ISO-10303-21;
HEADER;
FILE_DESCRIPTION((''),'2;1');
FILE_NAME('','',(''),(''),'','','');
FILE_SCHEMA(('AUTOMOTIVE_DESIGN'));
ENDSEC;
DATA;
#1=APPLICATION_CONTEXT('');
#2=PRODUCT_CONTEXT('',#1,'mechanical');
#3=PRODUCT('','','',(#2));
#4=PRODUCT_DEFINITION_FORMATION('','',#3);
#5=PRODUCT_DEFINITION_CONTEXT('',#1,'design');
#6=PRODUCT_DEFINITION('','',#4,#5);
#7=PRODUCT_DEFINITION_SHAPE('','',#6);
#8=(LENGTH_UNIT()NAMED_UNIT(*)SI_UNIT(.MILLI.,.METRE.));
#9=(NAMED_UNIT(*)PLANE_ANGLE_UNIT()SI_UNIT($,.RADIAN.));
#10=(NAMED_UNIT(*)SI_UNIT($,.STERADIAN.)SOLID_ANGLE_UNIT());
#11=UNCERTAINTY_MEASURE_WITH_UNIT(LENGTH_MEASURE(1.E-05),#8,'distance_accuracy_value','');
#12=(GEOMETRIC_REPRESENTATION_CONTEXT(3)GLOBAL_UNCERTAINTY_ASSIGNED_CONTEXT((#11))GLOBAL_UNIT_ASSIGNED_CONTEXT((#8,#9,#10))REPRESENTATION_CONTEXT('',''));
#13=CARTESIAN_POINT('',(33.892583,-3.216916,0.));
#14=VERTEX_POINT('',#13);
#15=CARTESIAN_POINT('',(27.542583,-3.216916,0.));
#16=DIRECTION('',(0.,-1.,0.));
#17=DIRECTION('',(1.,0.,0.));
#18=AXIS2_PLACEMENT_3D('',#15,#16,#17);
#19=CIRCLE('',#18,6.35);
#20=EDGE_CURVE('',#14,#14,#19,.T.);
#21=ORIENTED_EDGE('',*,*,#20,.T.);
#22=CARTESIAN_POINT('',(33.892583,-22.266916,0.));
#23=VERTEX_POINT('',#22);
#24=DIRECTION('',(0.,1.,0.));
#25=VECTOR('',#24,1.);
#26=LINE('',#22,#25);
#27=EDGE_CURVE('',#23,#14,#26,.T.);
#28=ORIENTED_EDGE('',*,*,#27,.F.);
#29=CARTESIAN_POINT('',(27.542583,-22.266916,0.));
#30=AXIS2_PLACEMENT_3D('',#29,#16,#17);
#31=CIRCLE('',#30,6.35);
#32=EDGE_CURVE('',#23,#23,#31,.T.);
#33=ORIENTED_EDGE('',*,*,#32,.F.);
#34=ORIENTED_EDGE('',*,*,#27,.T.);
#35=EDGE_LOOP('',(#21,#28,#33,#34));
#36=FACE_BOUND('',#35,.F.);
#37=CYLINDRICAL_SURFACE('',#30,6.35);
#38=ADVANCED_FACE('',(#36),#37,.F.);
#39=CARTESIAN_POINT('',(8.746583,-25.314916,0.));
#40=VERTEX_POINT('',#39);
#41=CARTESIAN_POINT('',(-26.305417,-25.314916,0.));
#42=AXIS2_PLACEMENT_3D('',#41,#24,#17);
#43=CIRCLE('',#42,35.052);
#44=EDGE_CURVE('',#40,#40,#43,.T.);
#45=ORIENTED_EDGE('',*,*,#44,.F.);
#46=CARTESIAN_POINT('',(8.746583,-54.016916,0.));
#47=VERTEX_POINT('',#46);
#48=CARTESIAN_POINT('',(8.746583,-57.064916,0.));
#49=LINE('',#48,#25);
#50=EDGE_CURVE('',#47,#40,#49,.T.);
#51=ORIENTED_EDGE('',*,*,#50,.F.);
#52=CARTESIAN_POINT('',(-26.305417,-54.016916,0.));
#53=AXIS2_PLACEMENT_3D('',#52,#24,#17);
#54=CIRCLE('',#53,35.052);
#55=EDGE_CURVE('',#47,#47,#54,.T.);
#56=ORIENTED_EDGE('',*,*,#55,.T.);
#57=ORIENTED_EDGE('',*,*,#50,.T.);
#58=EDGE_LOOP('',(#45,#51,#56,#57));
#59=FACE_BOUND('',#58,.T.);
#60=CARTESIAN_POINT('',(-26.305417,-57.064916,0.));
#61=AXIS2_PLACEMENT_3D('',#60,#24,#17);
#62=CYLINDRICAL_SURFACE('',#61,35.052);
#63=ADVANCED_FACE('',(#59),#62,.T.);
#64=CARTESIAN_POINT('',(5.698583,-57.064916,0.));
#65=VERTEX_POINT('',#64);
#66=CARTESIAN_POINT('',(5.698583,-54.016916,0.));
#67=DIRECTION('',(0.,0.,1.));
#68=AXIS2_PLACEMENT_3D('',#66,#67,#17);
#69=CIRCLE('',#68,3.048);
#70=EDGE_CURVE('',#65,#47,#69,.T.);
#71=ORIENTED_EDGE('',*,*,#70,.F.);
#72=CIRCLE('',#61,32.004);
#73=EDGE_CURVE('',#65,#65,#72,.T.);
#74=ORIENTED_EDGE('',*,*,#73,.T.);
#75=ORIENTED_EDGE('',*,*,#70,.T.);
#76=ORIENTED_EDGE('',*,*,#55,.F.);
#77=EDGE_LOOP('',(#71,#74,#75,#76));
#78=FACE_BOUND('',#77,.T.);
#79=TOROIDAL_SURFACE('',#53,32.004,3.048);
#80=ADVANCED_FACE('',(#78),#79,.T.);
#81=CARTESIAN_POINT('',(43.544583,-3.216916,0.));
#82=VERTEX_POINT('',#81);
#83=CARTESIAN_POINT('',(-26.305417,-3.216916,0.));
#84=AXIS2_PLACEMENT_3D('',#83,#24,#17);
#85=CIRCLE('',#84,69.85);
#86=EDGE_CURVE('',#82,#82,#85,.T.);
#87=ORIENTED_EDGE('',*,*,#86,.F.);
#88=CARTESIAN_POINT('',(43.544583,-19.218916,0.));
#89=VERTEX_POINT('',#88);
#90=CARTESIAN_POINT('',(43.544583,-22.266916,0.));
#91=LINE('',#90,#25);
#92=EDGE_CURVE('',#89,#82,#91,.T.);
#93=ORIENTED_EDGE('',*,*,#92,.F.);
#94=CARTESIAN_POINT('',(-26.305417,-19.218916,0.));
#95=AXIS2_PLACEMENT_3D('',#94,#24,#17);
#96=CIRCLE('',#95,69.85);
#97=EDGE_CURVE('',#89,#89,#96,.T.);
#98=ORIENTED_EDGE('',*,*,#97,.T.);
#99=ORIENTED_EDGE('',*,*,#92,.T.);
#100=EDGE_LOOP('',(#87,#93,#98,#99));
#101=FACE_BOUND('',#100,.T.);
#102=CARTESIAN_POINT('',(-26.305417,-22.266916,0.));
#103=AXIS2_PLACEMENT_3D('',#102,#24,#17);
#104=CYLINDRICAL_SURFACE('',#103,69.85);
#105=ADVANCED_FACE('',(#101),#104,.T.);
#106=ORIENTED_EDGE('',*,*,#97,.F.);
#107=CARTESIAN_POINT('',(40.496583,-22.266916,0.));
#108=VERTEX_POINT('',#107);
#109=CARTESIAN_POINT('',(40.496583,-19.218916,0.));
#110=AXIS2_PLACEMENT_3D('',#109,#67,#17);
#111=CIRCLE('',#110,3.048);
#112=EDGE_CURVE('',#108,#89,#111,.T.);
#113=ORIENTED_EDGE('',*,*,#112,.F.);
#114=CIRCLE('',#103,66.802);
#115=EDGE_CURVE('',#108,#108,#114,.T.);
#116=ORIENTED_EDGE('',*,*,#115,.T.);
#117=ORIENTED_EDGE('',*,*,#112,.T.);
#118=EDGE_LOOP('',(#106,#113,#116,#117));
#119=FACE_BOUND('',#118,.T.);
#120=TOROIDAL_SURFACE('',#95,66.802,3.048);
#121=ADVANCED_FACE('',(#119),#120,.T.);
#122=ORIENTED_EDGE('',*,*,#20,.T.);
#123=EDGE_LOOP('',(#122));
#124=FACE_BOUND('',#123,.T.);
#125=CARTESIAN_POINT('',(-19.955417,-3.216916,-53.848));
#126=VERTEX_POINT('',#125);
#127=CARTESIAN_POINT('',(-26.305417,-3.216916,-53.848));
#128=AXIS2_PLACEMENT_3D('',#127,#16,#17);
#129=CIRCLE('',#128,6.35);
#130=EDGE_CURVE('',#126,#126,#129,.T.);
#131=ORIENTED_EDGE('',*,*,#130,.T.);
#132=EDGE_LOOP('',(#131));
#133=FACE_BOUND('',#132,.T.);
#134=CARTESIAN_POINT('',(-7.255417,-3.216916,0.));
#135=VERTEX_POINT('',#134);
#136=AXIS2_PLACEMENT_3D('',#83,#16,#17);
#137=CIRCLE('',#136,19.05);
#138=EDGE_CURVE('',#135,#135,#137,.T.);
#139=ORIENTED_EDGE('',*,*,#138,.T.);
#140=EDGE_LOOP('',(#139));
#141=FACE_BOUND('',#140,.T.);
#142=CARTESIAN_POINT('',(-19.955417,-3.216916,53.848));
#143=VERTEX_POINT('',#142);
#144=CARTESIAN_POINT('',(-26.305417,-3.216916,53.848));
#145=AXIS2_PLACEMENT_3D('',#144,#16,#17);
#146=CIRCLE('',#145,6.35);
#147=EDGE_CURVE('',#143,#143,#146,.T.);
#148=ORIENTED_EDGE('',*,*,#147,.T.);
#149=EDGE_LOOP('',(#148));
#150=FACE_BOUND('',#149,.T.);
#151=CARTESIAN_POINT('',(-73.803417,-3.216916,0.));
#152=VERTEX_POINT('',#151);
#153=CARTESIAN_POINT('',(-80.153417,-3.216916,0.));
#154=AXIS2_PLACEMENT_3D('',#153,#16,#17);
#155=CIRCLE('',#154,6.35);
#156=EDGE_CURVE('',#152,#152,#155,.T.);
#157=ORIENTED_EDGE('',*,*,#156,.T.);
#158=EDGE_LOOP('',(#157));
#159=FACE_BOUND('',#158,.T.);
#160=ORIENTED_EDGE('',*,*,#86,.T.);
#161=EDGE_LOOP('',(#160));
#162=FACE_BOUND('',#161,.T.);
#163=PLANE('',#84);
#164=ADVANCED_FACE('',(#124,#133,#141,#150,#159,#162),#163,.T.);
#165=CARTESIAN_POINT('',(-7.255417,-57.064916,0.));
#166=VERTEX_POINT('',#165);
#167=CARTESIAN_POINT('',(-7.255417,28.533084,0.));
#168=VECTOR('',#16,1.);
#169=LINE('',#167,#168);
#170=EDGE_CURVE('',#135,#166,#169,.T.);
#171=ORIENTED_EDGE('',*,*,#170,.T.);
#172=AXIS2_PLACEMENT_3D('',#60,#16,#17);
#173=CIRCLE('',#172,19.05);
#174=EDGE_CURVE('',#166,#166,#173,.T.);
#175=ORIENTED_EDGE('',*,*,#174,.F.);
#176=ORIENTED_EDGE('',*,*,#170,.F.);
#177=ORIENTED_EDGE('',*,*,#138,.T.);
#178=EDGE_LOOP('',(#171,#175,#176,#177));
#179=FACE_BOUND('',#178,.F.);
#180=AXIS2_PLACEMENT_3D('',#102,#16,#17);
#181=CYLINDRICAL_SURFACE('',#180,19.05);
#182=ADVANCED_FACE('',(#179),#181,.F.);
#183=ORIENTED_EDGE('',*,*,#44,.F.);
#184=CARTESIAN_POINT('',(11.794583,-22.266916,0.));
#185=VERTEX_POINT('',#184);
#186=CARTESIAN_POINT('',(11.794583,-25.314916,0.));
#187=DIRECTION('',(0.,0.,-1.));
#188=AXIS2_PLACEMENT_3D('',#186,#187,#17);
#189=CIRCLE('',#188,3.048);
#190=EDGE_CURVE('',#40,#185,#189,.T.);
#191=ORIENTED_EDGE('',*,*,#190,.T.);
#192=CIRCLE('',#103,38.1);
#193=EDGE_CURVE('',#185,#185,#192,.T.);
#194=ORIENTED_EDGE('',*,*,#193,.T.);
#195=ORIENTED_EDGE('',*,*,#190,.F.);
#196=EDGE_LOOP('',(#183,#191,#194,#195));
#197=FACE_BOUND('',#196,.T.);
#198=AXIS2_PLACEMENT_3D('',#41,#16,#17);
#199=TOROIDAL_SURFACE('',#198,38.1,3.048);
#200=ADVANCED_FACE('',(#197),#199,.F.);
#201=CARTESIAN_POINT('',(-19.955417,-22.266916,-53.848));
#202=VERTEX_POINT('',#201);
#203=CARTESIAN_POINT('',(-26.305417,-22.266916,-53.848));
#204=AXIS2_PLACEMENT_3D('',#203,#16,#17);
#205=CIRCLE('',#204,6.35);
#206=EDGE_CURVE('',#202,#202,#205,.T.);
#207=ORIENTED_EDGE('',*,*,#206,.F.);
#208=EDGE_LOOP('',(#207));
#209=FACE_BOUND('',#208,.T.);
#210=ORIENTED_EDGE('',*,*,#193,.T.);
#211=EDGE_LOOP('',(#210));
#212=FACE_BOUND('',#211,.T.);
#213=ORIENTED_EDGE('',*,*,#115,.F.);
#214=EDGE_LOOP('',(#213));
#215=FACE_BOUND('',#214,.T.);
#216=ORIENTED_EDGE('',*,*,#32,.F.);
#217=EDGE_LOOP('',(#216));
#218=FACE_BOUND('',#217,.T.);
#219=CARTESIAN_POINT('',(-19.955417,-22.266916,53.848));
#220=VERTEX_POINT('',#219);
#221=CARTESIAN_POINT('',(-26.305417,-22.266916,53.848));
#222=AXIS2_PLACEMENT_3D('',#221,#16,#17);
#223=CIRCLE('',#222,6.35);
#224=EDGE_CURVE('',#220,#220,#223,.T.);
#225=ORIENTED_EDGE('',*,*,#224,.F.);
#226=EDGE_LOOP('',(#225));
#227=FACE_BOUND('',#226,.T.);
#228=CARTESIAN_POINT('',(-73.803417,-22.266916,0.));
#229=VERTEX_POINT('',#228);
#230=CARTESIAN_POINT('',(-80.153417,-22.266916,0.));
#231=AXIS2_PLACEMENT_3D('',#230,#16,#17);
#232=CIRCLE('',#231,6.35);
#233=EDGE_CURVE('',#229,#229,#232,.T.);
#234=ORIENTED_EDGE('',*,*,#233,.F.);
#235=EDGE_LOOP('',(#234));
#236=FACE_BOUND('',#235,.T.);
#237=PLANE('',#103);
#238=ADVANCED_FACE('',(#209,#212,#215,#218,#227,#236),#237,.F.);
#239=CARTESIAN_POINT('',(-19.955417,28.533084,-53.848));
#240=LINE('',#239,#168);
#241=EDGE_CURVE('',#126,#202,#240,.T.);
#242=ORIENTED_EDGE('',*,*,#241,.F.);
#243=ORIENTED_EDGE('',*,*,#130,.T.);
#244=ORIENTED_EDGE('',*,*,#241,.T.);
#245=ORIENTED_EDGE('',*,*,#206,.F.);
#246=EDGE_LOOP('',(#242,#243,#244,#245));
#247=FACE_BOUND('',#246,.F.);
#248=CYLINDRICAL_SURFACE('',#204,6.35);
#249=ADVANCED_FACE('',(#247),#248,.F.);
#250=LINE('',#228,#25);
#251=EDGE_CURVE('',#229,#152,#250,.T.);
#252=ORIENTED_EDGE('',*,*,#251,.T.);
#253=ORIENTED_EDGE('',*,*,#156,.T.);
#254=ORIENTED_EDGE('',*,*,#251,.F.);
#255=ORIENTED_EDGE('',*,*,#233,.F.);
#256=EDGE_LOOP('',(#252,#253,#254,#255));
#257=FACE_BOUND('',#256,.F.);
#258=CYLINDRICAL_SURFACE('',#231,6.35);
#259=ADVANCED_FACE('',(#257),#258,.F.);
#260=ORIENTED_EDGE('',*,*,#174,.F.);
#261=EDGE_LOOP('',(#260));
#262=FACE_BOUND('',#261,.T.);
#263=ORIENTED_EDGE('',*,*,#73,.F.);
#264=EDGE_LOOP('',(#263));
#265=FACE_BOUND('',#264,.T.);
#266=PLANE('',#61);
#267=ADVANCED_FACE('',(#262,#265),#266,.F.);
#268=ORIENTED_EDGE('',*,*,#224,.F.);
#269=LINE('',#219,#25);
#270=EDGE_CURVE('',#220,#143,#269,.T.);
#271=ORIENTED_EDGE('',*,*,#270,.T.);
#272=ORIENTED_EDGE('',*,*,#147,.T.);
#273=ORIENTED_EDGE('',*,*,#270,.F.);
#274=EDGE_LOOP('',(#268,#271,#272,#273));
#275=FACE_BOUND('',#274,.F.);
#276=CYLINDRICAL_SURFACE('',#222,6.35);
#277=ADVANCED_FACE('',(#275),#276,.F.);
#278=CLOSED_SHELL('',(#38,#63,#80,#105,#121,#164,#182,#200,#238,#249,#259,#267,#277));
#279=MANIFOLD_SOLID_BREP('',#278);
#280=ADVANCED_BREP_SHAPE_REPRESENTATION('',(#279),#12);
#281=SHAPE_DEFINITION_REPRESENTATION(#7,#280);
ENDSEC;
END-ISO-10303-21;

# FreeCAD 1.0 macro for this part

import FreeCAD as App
import Part
import Sketcher
Q = App.Units.Quantity


def edges_at(feature, points):
    """Names of the edges that pass closest to the given points."""
    edges = feature.Shape.Edges
    near = lambda p: min(range(len(edges)), key=lambda i: edges[i].distToShape(Part.Vertex(*p))[0])
    return sorted({f"Edge{near(p) + 1}" for p in points})

doc = App.newDocument("Part")
body = doc.addObject("PartDesign::Body", "Body")

# Sketch on XY plane
sketch1 = doc.addObject("Sketcher::SketchObject", "Sketch")
body.addObject(sketch1)
sketch1.AttachmentSupport = (doc.XY_Plane, [""])
sketch1.MapMode = "FlatFace"
sketch1.addGeometry(Part.LineSegment(App.Vector(-26, -3, 0), App.Vector(-26, -57, 0)), False)
sketch1.addGeometry(Part.LineSegment(App.Vector(-26, -57, 0), App.Vector(9, -57, 0)), False)
sketch1.addGeometry(Part.LineSegment(App.Vector(9, -57, 0), App.Vector(9, -22, 0)), False)
sketch1.addGeometry(Part.LineSegment(App.Vector(9, -22, 0), App.Vector(44, -22, 0)), False)
sketch1.addGeometry(Part.LineSegment(App.Vector(44, -22, 0), App.Vector(44, -3, 0)), False)
sketch1.addGeometry(Part.LineSegment(App.Vector(44, -3, 0), App.Vector(-26, -3, 0)), False)
sketch1.addGeometry(Part.LineSegment(App.Vector(-26, -57, 0), App.Vector(-26, -3, 0)), True)  # axis
sketch1.addConstraint(Sketcher.Constraint("Coincident", 0, 2, 1, 1))
sketch1.addConstraint(Sketcher.Constraint("Coincident", 1, 2, 2, 1))
sketch1.addConstraint(Sketcher.Constraint("Coincident", 2, 2, 3, 1))
sketch1.addConstraint(Sketcher.Constraint("Coincident", 3, 2, 4, 1))
sketch1.addConstraint(Sketcher.Constraint("Coincident", 4, 2, 5, 1))
sketch1.addConstraint(Sketcher.Constraint("Coincident", 5, 2, 0, 1))
sketch1.addConstraint(Sketcher.Constraint("Vertical", 0))
sketch1.addConstraint(Sketcher.Constraint("Horizontal", 1))
sketch1.addConstraint(Sketcher.Constraint("Vertical", 2))
sketch1.addConstraint(Sketcher.Constraint("Horizontal", 3))
sketch1.addConstraint(Sketcher.Constraint("Vertical", 4))
sketch1.addConstraint(Sketcher.Constraint("Horizontal", 5))
sketch1.addConstraint(Sketcher.Constraint("Vertical", 6))
sketch1.addConstraint(Sketcher.Constraint("Coincident", 6, 1, 0, 2))
sketch1.addConstraint(Sketcher.Constraint("Horizontal", 4, 2, 6, 2))
sketch1.addConstraint(Sketcher.Constraint("Equal", 3, 2))
sketch1.addConstraint(Sketcher.Constraint("DistanceX", 1, 1, 1, 2, Q("1.38 in")))
sketch1.addConstraint(Sketcher.Constraint("DistanceX", 3, 1, 3, 2, Q("1.37 in")))
sketch1.addConstraint(Sketcher.Constraint("DistanceY", 0, 2, 0, 1, Q("2.12 in")))
sketch1.addConstraint(Sketcher.Constraint("DistanceX", 0, 2, -1, 1, 26.305417))
sketch1.addConstraint(Sketcher.Constraint("DistanceY", 0, 2, -1, 1, 57.064916))
revolution = doc.addObject("PartDesign::Revolution", "Revolution")
body.addObject(revolution)
revolution.Profile = sketch1
revolution.ReferenceAxis = (sketch1, ["Axis0"])
revolution.Angle = 360

# Sketch on XZ plane
sketch2 = doc.addObject("Sketcher::SketchObject", "Sketch001")
body.addObject(sketch2)
sketch2.AttachmentSupport = (doc.XZ_Plane, [""])
sketch2.MapMode = "FlatFace"
sketch2.AttachmentOffset = App.Placement(App.Vector(0, 0, 22.266916), App.Rotation())
sketch2.addGeometry(Part.Circle(App.Vector(-26, 0, 0), App.Vector(0, 0, 1), 19), False)
sketch2.addConstraint(Sketcher.Constraint("PointOnObject", 0, 3, -1))
sketch2.addConstraint(Sketcher.Constraint("Diameter", 0, Q("1.5 in")))
sketch2.addConstraint(Sketcher.Constraint("DistanceX", 0, 3, -1, 1, 26.305417))
pocket1 = doc.addObject("PartDesign::Pocket", "Pocket")
body.addObject(pocket1)
pocket1.Profile = sketch2
pocket1.Length = Q("4 in")
pocket1.Midplane = True

# Sketch on XZ plane
sketch3 = doc.addObject("Sketcher::SketchObject", "Sketch002")
body.addObject(sketch3)
sketch3.AttachmentSupport = (doc.XZ_Plane, [""])
sketch3.MapMode = "FlatFace"
sketch3.AttachmentOffset = App.Placement(App.Vector(0, 0, 22.266916), App.Rotation())
sketch3.addGeometry(Part.Circle(App.Vector(-80, 0, 0), App.Vector(0, 0, 1), 6), False)
sketch3.addGeometry(Part.Circle(App.Vector(28, 0, 0), App.Vector(0, 0, 1), 6), False)
sketch3.addGeometry(Part.Circle(App.Vector(-26, 54, 0), App.Vector(0, 0, 1), 6), False)
sketch3.addGeometry(Part.Circle(App.Vector(-26, -54, 0), App.Vector(0, 0, 1), 6), False)
sketch3.addConstraint(Sketcher.Constraint("Equal", 0, 1))
sketch3.addConstraint(Sketcher.Constraint("Equal", 1, 2))
sketch3.addConstraint(Sketcher.Constraint("Equal", 2, 3))
sketch3.addConstraint(Sketcher.Constraint("Symmetric", 2, 3, 3, 3, -1))
sketch3.addConstraint(Sketcher.Constraint("PointOnObject", 0, 3, -1))
sketch3.addConstraint(Sketcher.Constraint("PointOnObject", 1, 3, -1))
sketch3.addConstraint(Sketcher.Constraint("Diameter", 0, Q("0.5 in")))
sketch3.addConstraint(Sketcher.Constraint("DistanceY", -1, 1, 2, 3, Q("2.12 in")))
sketch3.addConstraint(Sketcher.Constraint("DistanceX", 0, 3, 1, 3, Q("4.24 in")))
sketch3.addConstraint(Sketcher.Constraint("DistanceX", 0, 3, 2, 3, Q("2.12 in")))
sketch3.addConstraint(Sketcher.Constraint("DistanceX", 0, 3, -1, 1, 80.153417))
pocket2 = doc.addObject("PartDesign::Pocket", "Pocket001")
body.addObject(pocket2)
pocket2.Profile = sketch3
pocket2.Length = Q("4 in")
pocket2.Midplane = True
doc.recompute()

fillet = doc.addObject("PartDesign::Fillet", "Fillet")
body.addObject(fillet)
fillet.Base = (pocket2, edges_at(pocket2, [(-96.155, -22.267, 0), (-61.357, -22.267, 0), (-61.357, -57.065, 0)]))
fillet.Radius = Q("0.12 in")

doc.recompute()
